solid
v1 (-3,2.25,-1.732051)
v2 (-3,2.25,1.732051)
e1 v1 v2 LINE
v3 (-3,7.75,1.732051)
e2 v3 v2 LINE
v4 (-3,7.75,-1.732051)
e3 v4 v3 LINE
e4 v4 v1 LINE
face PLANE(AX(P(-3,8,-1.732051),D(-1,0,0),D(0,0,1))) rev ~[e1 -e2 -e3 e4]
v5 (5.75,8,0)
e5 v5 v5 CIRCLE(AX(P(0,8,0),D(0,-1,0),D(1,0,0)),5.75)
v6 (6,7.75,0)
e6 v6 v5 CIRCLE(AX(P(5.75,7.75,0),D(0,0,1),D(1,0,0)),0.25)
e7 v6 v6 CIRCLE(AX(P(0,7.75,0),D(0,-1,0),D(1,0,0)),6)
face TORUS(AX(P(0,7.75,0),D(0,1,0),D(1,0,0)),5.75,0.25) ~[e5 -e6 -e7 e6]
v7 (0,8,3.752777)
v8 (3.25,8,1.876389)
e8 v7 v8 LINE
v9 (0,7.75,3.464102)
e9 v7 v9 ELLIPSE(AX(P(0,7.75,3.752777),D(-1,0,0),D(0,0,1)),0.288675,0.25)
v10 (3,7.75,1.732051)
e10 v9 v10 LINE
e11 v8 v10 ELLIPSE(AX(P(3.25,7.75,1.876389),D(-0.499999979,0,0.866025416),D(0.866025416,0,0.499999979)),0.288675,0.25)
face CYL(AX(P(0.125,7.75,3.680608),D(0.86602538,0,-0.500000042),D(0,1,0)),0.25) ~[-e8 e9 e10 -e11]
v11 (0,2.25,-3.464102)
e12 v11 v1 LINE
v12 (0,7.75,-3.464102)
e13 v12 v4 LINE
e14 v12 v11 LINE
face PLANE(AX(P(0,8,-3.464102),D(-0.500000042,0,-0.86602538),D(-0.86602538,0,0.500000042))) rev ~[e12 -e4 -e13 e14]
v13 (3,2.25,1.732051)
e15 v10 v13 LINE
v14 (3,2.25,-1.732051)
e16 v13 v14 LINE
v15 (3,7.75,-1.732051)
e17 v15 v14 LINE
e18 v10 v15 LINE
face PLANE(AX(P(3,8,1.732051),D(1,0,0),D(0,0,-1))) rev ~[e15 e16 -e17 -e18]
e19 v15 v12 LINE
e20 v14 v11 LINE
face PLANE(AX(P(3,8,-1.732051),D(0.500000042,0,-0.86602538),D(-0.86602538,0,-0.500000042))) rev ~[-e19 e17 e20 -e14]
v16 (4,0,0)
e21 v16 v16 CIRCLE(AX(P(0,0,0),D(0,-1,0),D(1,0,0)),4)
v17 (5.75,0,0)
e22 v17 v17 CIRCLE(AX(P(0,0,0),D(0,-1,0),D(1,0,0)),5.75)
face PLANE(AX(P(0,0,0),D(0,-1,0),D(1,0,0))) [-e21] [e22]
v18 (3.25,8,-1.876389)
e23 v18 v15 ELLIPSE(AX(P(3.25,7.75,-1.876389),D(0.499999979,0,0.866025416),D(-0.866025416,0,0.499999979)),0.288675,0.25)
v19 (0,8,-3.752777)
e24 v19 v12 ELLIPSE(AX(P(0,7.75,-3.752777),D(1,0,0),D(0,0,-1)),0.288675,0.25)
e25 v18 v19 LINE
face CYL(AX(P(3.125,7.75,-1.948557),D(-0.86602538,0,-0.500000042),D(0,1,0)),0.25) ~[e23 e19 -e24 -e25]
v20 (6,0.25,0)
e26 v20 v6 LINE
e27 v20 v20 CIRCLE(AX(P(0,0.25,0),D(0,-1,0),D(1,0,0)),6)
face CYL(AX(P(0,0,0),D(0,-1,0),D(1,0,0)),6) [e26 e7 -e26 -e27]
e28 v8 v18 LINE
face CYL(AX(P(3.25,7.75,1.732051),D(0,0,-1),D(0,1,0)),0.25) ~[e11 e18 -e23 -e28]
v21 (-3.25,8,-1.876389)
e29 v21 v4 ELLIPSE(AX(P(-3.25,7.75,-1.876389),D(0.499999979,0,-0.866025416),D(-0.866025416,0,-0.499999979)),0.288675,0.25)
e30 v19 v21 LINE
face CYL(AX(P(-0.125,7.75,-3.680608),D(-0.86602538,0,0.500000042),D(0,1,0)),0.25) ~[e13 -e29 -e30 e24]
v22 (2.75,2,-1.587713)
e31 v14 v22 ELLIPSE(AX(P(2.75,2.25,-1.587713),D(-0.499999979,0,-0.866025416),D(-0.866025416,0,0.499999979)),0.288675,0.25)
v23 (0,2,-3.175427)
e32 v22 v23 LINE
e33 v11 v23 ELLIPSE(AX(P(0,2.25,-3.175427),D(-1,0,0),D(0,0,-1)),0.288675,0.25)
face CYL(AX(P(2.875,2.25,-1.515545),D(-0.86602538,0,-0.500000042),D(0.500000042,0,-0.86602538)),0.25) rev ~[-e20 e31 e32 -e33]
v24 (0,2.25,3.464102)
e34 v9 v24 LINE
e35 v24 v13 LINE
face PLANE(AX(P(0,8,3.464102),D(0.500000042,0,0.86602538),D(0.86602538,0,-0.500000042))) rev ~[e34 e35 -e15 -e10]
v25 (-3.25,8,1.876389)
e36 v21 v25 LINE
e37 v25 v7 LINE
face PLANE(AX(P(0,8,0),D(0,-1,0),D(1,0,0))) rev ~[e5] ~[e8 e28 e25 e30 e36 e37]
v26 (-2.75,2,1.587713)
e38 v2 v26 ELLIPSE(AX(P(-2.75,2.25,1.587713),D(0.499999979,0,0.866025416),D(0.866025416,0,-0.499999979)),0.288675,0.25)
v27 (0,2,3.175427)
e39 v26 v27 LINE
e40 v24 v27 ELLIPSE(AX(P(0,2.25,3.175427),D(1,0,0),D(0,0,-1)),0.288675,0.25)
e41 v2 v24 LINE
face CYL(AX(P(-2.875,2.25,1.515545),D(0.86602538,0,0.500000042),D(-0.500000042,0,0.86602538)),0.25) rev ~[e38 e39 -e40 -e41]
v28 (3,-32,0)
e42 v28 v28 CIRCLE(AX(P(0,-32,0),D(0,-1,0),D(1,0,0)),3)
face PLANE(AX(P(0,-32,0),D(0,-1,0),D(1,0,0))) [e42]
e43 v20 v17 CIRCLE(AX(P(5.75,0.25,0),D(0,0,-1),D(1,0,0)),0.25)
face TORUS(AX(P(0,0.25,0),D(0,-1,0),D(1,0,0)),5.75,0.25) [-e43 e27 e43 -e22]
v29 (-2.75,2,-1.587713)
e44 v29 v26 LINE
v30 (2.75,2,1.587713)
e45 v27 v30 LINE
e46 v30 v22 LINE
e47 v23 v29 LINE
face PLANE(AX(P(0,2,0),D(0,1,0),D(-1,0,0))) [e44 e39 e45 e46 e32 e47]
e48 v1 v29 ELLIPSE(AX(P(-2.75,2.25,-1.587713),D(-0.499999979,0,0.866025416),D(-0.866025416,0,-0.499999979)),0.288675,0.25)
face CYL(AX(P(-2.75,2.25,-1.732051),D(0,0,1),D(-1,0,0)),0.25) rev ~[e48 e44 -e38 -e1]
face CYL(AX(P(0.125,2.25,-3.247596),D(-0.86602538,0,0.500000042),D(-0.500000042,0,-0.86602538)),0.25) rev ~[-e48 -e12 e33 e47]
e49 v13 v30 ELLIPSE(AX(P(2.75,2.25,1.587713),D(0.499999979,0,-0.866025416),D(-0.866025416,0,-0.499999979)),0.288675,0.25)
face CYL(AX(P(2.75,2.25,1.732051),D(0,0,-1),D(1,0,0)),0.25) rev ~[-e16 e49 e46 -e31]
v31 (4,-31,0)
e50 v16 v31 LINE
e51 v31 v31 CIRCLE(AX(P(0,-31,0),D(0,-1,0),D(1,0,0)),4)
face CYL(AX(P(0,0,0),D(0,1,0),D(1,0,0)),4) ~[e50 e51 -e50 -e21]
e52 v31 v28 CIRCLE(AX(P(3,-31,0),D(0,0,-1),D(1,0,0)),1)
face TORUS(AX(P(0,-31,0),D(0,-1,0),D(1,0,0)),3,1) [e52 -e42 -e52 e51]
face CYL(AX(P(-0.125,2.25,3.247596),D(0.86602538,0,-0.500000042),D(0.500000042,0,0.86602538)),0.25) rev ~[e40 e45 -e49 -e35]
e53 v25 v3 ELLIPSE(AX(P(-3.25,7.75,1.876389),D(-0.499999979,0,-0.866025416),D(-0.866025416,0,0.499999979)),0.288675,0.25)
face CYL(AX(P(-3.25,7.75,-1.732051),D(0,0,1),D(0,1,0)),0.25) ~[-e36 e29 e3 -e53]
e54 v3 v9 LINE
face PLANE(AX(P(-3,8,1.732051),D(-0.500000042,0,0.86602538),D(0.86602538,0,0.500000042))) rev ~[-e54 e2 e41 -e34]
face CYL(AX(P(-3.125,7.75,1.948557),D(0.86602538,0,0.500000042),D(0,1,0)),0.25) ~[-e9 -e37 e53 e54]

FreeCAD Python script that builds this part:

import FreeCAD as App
import Part
import Sketcher
Q = App.Units.Quantity


def edges_at(feature, points):
    """Names of the edges that pass closest to the given points."""
    edges = feature.Shape.Edges
    near = lambda p: min(range(len(edges)), key=lambda i: edges[i].distToShape(Part.Vertex(*p))[0])
    return sorted({f"Edge{near(p) + 1}" for p in points})

doc = App.newDocument("Part")
params = doc.addObject("Spreadsheet::Sheet", "Params")
for row, (alias, value) in enumerate([
    ("sketch1_diameter", "8 mm"),
    ("pad1_length", "32 mm"),
    ("sketch2_diameter", "12 mm"),
    ("pad2_length", "8 mm"),
    ("pocket1_length", "6 mm"),
    ("fillet_radius", "0.25 mm"),
    ("fillet2_radius", "1 mm"),
], start=1):
    params.set(f"A{row}", alias)
    params.set(f"B{row}", "=" + value)
    params.setAlias(f"B{row}", alias)

body = doc.addObject("PartDesign::Body", "Body")

sketch1 = body.newObject("Sketcher::SketchObject", "Sketch")
sketch1.AttachmentSupport = (doc.getObject("XZ_Plane"), [""])
sketch1.MapMode = "FlatFace"
sketch1.addGeometry(Part.Circle(App.Vector(0, 0, 0), App.Vector(0, 0, 1), 4), False)
sketch1.addConstraint([
    Sketcher.Constraint("Coincident", 0, 3, -1, 1),
    Sketcher.Constraint("Diameter", 0, Q("8 mm")),
])
sketch1.setExpression("Constraints[1]", "Params.sketch1_diameter")
pad1 = body.newObject("PartDesign::Pad", "Pad")
pad1.Profile = sketch1
pad1.setExpression("Length", "Params.pad1_length")

sketch2 = body.newObject("Sketcher::SketchObject", "Sketch001")
sketch2.AttachmentSupport = (doc.getObject("XZ_Plane"), [""])
sketch2.MapMode = "FlatFace"
sketch2.addGeometry(Part.Circle(App.Vector(0, 0, 0), App.Vector(0, 0, 1), 6), False)
sketch2.addConstraint([
    Sketcher.Constraint("Coincident", 0, 3, -1, 1),
    Sketcher.Constraint("Diameter", 0, Q("12 mm")),
])
sketch2.setExpression("Constraints[1]", "Params.sketch2_diameter")
pad2 = body.newObject("PartDesign::Pad", "Pad001")
pad2.Profile = sketch2
pad2.setExpression("Length", "Params.pad2_length")
pad2.Reversed = True

sketch3 = body.newObject("Sketcher::SketchObject", "Sketch002")
sketch3.AttachmentSupport = (doc.getObject("XZ_Plane"), [""])
sketch3.MapMode = "FlatFace"
sketch3.AttachmentOffset = App.Placement(App.Vector(0, 0, -8), App.Rotation())
sketch3.addGeometry([
    Part.LineSegment(App.Vector(3, 1.732051, 0), App.Vector(3, -1.732051, 0)),
    Part.LineSegment(App.Vector(3, -1.732051, 0), App.Vector(0, -3.464102, 0)),
    Part.LineSegment(App.Vector(0, -3.464102, 0), App.Vector(-3, -1.732051, 0)),
    Part.LineSegment(App.Vector(-3, -1.732051, 0), App.Vector(-3, 1.732051, 0)),
    Part.LineSegment(App.Vector(-3, 1.732051, 0), App.Vector(0, 3.464102, 0)),
    Part.LineSegment(App.Vector(0, 3.464102, 0), App.Vector(3, 1.732051, 0)),
], False)
sketch3.addConstraint([
    Sketcher.Constraint("Coincident", 0, 2, 1, 1),
    Sketcher.Constraint("Coincident", 1, 2, 2, 1),
    Sketcher.Constraint("Coincident", 2, 2, 3, 1),
    Sketcher.Constraint("Coincident", 3, 2, 4, 1),
    Sketcher.Constraint("Coincident", 4, 2, 5, 1),
    Sketcher.Constraint("Coincident", 5, 2, 0, 1),
    Sketcher.Constraint("Vertical", 0),
    Sketcher.Constraint("Vertical", 3),
    Sketcher.Constraint("Symmetric", 0, 2, 3, 2, -1, 1),
    Sketcher.Constraint("Symmetric", 1, 2, 4, 2, -1, 1),
    Sketcher.Constraint("PointOnObject", 1, 2, -2),
    Sketcher.Constraint("Parallel", 2, 5),
    Sketcher.Constraint("Horizontal", 0, 2, 2, 2),
    Sketcher.Constraint("Angle", 1, Q("-149.999997 deg")),
    Sketcher.Constraint("DistanceX", -1, 1, 0, 2, Q("3 mm")),
    Sketcher.Constraint("DistanceY", 0, 2, 0, 1, Q("3.464102 mm")),
])
pocket1 = body.newObject("PartDesign::Pocket", "Pocket")
pocket1.Profile = sketch3
pocket1.setExpression("Length", "Params.pocket1_length")
pocket1.Reversed = True
doc.recompute()

fillet = body.newObject("PartDesign::Fillet", "Fillet")
fillet.Base = (pocket1, edges_at(pocket1, [
    (1.5, 8, -2.598),
    (-1.5, 8, -2.598),
    (-3, 8, 0),
    (-1.5, 8, 2.598),
    (1.5, 8, 2.598),
    (3, 8, 0),
    (-6, 8, 0),
    (1.5, 2, -2.598),
    (-1.5, 2, -2.598),
    (3, 2, 0),
    (1.5, 2, 2.598),
    (-1.5, 2, 2.598),
    (-3, 2, 0),
    (-6, 0, 0),
]))
fillet.setExpression("Radius", "Params.fillet_radius")
doc.recompute()

fillet2 = body.newObject("PartDesign::Fillet", "Fillet001")
fillet2.Base = (fillet, edges_at(fillet, [(-4, -32, 0)]))
fillet2.setExpression("Radius", "Params.fillet2_radius")

doc.recompute()
